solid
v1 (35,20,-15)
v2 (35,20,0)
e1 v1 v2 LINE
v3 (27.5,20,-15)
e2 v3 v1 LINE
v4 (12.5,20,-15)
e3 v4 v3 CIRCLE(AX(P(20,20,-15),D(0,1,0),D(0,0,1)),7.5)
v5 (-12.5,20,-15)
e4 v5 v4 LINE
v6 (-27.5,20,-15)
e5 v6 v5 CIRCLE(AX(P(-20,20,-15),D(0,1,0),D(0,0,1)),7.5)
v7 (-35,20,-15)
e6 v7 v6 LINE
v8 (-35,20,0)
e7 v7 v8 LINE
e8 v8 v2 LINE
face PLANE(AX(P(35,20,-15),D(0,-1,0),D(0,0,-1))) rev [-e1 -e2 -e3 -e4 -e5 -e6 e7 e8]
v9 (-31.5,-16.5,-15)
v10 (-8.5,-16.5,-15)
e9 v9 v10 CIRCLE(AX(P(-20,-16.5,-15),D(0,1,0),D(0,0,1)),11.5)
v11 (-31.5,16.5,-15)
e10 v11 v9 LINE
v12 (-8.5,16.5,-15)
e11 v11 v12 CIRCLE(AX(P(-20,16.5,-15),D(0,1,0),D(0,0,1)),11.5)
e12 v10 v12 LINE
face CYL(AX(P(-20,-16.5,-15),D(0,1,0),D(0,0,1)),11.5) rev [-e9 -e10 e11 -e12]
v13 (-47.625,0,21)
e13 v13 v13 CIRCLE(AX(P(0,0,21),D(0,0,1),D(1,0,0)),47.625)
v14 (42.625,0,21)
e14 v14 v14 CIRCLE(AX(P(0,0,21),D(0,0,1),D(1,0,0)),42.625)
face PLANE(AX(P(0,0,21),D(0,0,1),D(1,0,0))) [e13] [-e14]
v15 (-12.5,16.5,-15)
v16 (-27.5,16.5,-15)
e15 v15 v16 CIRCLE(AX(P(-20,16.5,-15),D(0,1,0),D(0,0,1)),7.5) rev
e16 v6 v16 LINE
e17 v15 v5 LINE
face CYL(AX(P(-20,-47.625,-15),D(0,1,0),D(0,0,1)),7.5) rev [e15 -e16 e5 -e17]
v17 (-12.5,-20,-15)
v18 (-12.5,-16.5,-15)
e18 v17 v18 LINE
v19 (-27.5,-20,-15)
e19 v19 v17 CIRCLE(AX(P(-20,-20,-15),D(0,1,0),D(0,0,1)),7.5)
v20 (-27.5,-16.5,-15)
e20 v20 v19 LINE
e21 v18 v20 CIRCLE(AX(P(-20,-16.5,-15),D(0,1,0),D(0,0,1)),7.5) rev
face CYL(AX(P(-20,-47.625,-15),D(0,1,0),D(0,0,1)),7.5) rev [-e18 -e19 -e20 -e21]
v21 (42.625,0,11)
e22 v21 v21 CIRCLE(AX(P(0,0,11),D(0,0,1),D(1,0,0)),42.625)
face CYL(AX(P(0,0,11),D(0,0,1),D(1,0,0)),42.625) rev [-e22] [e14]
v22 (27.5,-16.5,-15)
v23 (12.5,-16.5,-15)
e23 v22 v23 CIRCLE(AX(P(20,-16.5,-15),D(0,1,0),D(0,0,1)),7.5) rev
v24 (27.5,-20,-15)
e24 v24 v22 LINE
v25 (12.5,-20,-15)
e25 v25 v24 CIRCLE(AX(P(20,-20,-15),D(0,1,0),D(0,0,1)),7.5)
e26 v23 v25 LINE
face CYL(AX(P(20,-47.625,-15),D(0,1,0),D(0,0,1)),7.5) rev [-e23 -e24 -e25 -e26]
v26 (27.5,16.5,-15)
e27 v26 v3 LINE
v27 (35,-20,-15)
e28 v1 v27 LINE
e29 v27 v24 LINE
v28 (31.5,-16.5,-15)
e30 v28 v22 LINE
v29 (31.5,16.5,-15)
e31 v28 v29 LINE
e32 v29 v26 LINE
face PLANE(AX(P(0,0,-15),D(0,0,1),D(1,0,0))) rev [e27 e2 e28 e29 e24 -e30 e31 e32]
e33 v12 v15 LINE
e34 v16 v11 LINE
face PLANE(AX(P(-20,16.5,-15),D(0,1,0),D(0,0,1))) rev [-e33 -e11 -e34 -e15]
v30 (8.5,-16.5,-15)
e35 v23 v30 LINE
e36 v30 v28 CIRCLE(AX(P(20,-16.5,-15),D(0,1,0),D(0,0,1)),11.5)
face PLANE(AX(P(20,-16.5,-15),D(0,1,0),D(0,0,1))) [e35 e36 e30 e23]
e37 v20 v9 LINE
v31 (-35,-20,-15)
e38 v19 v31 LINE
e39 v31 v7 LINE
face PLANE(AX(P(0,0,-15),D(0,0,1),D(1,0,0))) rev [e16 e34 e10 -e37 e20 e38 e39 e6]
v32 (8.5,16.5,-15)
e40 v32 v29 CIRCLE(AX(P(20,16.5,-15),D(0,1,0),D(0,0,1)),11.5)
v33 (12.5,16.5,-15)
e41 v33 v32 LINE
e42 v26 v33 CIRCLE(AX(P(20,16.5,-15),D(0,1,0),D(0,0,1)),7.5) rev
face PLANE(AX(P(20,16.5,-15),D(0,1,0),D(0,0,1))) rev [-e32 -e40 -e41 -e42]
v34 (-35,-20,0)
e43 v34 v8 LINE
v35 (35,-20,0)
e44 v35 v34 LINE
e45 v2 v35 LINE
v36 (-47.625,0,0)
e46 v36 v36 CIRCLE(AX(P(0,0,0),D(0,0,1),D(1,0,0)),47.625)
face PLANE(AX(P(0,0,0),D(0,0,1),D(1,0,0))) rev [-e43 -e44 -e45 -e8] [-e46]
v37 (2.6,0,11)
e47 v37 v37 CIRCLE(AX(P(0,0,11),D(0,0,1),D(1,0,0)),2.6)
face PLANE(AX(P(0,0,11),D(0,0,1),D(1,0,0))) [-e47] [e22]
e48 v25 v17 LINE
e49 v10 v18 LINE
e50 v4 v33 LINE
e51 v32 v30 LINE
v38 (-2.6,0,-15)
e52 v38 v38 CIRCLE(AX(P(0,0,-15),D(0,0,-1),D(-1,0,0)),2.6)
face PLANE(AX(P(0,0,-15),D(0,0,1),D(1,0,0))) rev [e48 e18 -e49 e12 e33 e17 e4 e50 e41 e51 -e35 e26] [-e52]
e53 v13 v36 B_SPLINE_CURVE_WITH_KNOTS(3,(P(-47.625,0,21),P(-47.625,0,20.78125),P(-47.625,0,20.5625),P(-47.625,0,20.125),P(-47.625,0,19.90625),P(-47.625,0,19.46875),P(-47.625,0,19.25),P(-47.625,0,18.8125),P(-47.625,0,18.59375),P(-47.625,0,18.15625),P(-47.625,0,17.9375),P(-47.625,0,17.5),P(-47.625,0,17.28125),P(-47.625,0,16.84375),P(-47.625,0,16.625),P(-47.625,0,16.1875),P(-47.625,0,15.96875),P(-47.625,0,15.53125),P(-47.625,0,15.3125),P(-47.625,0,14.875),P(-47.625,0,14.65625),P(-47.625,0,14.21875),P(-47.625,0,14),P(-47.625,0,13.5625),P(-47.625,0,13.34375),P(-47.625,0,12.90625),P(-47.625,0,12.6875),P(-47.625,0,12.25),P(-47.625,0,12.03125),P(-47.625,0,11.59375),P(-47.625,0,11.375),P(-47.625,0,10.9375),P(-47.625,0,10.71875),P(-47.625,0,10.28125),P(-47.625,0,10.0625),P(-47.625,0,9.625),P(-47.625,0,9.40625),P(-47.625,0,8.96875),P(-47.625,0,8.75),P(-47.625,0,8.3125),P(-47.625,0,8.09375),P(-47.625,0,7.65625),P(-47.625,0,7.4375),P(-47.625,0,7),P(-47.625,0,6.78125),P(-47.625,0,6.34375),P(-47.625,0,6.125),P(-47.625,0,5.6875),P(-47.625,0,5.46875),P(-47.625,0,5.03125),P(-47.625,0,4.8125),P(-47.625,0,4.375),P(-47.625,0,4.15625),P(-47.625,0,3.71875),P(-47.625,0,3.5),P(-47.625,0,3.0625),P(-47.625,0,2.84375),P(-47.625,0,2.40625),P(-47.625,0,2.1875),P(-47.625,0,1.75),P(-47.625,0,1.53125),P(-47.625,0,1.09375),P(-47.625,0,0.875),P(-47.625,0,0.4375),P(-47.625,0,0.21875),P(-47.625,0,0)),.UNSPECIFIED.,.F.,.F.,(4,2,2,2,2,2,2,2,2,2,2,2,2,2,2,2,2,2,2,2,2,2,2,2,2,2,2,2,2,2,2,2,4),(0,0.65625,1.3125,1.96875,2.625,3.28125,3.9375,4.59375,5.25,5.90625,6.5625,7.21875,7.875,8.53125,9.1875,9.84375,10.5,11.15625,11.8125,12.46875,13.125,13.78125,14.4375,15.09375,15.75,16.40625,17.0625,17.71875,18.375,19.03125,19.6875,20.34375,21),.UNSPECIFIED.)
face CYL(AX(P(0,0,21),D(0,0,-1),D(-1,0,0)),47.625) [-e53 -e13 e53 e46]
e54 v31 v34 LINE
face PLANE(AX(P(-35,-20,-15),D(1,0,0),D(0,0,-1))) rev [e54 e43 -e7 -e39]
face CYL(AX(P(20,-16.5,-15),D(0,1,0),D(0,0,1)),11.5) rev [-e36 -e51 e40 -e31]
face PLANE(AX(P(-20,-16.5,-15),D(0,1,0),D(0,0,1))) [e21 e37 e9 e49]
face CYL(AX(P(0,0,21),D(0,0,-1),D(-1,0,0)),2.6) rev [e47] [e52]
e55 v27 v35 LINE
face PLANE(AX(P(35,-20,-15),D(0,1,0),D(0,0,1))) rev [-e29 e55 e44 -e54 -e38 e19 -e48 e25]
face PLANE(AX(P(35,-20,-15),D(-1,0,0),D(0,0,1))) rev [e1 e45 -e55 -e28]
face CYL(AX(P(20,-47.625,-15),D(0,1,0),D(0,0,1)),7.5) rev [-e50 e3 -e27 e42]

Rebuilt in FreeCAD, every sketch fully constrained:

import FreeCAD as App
import Part
import Sketcher

doc = App.newDocument("Part")
body = doc.addObject("PartDesign::Body", "Body")

sketch1 = body.newObject("Sketcher::SketchObject", "Sketch")
sketch1.AttachmentSupport = (doc.getObject("XY_Plane"), [""])
sketch1.MapMode = "FlatFace"
sketch1.addGeometry(Part.Circle(App.Vector(0, 0, 0), App.Vector(0, 0, 1), 48), False)
sketch1.addConstraint(Sketcher.Constraint("Coincident", 0, 3, -1, 1))
sketch1.addConstraint(Sketcher.Constraint("Diameter", 0, 95.25))
pad1 = body.newObject("PartDesign::Pad", "Pad")
pad1.Profile = sketch1
pad1.Length = 21

sketch2 = body.newObject("Sketcher::SketchObject", "Sketch001")
sketch2.AttachmentSupport = (doc.getObject("XY_Plane"), [""])
sketch2.MapMode = "FlatFace"
sketch2.AttachmentOffset = App.Placement(App.Vector(0, 0, 21), App.Rotation())
sketch2.addGeometry(Part.Circle(App.Vector(0, 0, 0), App.Vector(0, 0, 1), 43), False)
sketch2.addConstraint(Sketcher.Constraint("Coincident", 0, 3, -1, 1))
sketch2.addConstraint(Sketcher.Constraint("Diameter", 0, 85.25))
pocket1 = body.newObject("PartDesign::Pocket", "Pocket")
pocket1.Profile = sketch2
pocket1.Length = 10

sketch3 = body.newObject("Sketcher::SketchObject", "Sketch002")
sketch3.AttachmentSupport = (doc.getObject("XY_Plane"), [""])
sketch3.MapMode = "FlatFace"
sketch3.addGeometry(Part.LineSegment(App.Vector(35, 20, 0), App.Vector(35, -20, 0)), False)
sketch3.addGeometry(Part.LineSegment(App.Vector(35, -20, 0), App.Vector(-35, -20, 0)), False)
sketch3.addGeometry(Part.LineSegment(App.Vector(-35, -20, 0), App.Vector(-35, 20, 0)), False)
sketch3.addGeometry(Part.LineSegment(App.Vector(-35, 20, 0), App.Vector(35, 20, 0)), False)
sketch3.addConstraint(Sketcher.Constraint("Coincident", 0, 2, 1, 1))
sketch3.addConstraint(Sketcher.Constraint("Coincident", 1, 2, 2, 1))
sketch3.addConstraint(Sketcher.Constraint("Coincident", 2, 2, 3, 1))
sketch3.addConstraint(Sketcher.Constraint("Coincident", 3, 2, 0, 1))
sketch3.addConstraint(Sketcher.Constraint("Vertical", 0))
sketch3.addConstraint(Sketcher.Constraint("Horizontal", 1))
sketch3.addConstraint(Sketcher.Constraint("Vertical", 2))
sketch3.addConstraint(Sketcher.Constraint("Horizontal", 3))
sketch3.addConstraint(Sketcher.Constraint("Symmetric", 0, 2, 2, 2, -1, 1))
sketch3.addConstraint(Sketcher.Constraint("DistanceX", 1, 2, 1, 1, 70.0))
sketch3.addConstraint(Sketcher.Constraint("DistanceY", 0, 2, 0, 1, 40.0))
pad2 = body.newObject("PartDesign::Pad", "Pad001")
pad2.Profile = sketch3
pad2.Length = 15
pad2.Reversed = True

sketch4 = body.newObject("Sketcher::SketchObject", "Sketch003")
sketch4.AttachmentSupport = (doc.getObject("XZ_Plane"), [""])
sketch4.MapMode = "FlatFace"
sketch4.AttachmentOffset = App.Placement(App.Vector(0, 0, -20), App.Rotation())
sketch4.addGeometry(Part.Circle(App.Vector(20, -15, 0), App.Vector(0, 0, 1), 8), False)
sketch4.addGeometry(Part.Circle(App.Vector(-20, -15, 0), App.Vector(0, 0, 1), 8), False)
sketch4.addConstraint(Sketcher.Constraint("Equal", 0, 1))
sketch4.addConstraint(Sketcher.Constraint("Symmetric", 0, 3, 1, 3, -2))
sketch4.addConstraint(Sketcher.Constraint("Diameter", 0, 15.0))
sketch4.addConstraint(Sketcher.Constraint("DistanceX", -1, 1, 0, 3, 20.0))
sketch4.addConstraint(Sketcher.Constraint("DistanceY", 0, 3, -1, 1, 15.0))
pocket2 = body.newObject("PartDesign::Pocket", "Pocket001")
pocket2.Profile = sketch4
pocket2.Type = "ThroughAll"
pocket2.Reversed = True

sketch5 = body.newObject("Sketcher::SketchObject", "Sketch004")
sketch5.AttachmentSupport = (doc.getObject("XY_Plane"), [""])
sketch5.MapMode = "FlatFace"
sketch5.AttachmentOffset = App.Placement(App.Vector(0, 0, -15), App.Rotation())
sketch5.addGeometry(Part.Circle(App.Vector(0, 0, 0), App.Vector(0, 0, 1), 2.6), False)
sketch5.addConstraint(Sketcher.Constraint("Coincident", 0, 3, -1, 1))
sketch5.addConstraint(Sketcher.Constraint("Diameter", 0, 5.2))
pocket3 = body.newObject("PartDesign::Pocket", "Pocket002")
pocket3.Profile = sketch5
pocket3.Type = "ThroughAll"
pocket3.Reversed = True

sketch6 = body.newObject("Sketcher::SketchObject", "Sketch005")
sketch6.AttachmentSupport = (doc.getObject("XZ_Plane"), [""])
sketch6.MapMode = "FlatFace"
sketch6.addGeometry(Part.Circle(App.Vector(-20, -15, 0), App.Vector(0, 0, 1), 12), False)
sketch6.addGeometry(Part.Circle(App.Vector(20, -15, 0), App.Vector(0, 0, 1), 12), False)
sketch6.addConstraint(Sketcher.Constraint("Equal", 0, 1))
sketch6.addConstraint(Sketcher.Constraint("Symmetric", 0, 3, 1, 3, -2))
sketch6.addConstraint(Sketcher.Constraint("Diameter", 0, 23.0))
sketch6.addConstraint(Sketcher.Constraint("DistanceX", 0, 3, -1, 1, 20.0))
sketch6.addConstraint(Sketcher.Constraint("DistanceY", 0, 3, -1, 1, 15.0))
pocket4 = body.newObject("PartDesign::Pocket", "Pocket003")
pocket4.Profile = sketch6
pocket4.Length = 33
pocket4.Midplane = True

doc.recompute()
